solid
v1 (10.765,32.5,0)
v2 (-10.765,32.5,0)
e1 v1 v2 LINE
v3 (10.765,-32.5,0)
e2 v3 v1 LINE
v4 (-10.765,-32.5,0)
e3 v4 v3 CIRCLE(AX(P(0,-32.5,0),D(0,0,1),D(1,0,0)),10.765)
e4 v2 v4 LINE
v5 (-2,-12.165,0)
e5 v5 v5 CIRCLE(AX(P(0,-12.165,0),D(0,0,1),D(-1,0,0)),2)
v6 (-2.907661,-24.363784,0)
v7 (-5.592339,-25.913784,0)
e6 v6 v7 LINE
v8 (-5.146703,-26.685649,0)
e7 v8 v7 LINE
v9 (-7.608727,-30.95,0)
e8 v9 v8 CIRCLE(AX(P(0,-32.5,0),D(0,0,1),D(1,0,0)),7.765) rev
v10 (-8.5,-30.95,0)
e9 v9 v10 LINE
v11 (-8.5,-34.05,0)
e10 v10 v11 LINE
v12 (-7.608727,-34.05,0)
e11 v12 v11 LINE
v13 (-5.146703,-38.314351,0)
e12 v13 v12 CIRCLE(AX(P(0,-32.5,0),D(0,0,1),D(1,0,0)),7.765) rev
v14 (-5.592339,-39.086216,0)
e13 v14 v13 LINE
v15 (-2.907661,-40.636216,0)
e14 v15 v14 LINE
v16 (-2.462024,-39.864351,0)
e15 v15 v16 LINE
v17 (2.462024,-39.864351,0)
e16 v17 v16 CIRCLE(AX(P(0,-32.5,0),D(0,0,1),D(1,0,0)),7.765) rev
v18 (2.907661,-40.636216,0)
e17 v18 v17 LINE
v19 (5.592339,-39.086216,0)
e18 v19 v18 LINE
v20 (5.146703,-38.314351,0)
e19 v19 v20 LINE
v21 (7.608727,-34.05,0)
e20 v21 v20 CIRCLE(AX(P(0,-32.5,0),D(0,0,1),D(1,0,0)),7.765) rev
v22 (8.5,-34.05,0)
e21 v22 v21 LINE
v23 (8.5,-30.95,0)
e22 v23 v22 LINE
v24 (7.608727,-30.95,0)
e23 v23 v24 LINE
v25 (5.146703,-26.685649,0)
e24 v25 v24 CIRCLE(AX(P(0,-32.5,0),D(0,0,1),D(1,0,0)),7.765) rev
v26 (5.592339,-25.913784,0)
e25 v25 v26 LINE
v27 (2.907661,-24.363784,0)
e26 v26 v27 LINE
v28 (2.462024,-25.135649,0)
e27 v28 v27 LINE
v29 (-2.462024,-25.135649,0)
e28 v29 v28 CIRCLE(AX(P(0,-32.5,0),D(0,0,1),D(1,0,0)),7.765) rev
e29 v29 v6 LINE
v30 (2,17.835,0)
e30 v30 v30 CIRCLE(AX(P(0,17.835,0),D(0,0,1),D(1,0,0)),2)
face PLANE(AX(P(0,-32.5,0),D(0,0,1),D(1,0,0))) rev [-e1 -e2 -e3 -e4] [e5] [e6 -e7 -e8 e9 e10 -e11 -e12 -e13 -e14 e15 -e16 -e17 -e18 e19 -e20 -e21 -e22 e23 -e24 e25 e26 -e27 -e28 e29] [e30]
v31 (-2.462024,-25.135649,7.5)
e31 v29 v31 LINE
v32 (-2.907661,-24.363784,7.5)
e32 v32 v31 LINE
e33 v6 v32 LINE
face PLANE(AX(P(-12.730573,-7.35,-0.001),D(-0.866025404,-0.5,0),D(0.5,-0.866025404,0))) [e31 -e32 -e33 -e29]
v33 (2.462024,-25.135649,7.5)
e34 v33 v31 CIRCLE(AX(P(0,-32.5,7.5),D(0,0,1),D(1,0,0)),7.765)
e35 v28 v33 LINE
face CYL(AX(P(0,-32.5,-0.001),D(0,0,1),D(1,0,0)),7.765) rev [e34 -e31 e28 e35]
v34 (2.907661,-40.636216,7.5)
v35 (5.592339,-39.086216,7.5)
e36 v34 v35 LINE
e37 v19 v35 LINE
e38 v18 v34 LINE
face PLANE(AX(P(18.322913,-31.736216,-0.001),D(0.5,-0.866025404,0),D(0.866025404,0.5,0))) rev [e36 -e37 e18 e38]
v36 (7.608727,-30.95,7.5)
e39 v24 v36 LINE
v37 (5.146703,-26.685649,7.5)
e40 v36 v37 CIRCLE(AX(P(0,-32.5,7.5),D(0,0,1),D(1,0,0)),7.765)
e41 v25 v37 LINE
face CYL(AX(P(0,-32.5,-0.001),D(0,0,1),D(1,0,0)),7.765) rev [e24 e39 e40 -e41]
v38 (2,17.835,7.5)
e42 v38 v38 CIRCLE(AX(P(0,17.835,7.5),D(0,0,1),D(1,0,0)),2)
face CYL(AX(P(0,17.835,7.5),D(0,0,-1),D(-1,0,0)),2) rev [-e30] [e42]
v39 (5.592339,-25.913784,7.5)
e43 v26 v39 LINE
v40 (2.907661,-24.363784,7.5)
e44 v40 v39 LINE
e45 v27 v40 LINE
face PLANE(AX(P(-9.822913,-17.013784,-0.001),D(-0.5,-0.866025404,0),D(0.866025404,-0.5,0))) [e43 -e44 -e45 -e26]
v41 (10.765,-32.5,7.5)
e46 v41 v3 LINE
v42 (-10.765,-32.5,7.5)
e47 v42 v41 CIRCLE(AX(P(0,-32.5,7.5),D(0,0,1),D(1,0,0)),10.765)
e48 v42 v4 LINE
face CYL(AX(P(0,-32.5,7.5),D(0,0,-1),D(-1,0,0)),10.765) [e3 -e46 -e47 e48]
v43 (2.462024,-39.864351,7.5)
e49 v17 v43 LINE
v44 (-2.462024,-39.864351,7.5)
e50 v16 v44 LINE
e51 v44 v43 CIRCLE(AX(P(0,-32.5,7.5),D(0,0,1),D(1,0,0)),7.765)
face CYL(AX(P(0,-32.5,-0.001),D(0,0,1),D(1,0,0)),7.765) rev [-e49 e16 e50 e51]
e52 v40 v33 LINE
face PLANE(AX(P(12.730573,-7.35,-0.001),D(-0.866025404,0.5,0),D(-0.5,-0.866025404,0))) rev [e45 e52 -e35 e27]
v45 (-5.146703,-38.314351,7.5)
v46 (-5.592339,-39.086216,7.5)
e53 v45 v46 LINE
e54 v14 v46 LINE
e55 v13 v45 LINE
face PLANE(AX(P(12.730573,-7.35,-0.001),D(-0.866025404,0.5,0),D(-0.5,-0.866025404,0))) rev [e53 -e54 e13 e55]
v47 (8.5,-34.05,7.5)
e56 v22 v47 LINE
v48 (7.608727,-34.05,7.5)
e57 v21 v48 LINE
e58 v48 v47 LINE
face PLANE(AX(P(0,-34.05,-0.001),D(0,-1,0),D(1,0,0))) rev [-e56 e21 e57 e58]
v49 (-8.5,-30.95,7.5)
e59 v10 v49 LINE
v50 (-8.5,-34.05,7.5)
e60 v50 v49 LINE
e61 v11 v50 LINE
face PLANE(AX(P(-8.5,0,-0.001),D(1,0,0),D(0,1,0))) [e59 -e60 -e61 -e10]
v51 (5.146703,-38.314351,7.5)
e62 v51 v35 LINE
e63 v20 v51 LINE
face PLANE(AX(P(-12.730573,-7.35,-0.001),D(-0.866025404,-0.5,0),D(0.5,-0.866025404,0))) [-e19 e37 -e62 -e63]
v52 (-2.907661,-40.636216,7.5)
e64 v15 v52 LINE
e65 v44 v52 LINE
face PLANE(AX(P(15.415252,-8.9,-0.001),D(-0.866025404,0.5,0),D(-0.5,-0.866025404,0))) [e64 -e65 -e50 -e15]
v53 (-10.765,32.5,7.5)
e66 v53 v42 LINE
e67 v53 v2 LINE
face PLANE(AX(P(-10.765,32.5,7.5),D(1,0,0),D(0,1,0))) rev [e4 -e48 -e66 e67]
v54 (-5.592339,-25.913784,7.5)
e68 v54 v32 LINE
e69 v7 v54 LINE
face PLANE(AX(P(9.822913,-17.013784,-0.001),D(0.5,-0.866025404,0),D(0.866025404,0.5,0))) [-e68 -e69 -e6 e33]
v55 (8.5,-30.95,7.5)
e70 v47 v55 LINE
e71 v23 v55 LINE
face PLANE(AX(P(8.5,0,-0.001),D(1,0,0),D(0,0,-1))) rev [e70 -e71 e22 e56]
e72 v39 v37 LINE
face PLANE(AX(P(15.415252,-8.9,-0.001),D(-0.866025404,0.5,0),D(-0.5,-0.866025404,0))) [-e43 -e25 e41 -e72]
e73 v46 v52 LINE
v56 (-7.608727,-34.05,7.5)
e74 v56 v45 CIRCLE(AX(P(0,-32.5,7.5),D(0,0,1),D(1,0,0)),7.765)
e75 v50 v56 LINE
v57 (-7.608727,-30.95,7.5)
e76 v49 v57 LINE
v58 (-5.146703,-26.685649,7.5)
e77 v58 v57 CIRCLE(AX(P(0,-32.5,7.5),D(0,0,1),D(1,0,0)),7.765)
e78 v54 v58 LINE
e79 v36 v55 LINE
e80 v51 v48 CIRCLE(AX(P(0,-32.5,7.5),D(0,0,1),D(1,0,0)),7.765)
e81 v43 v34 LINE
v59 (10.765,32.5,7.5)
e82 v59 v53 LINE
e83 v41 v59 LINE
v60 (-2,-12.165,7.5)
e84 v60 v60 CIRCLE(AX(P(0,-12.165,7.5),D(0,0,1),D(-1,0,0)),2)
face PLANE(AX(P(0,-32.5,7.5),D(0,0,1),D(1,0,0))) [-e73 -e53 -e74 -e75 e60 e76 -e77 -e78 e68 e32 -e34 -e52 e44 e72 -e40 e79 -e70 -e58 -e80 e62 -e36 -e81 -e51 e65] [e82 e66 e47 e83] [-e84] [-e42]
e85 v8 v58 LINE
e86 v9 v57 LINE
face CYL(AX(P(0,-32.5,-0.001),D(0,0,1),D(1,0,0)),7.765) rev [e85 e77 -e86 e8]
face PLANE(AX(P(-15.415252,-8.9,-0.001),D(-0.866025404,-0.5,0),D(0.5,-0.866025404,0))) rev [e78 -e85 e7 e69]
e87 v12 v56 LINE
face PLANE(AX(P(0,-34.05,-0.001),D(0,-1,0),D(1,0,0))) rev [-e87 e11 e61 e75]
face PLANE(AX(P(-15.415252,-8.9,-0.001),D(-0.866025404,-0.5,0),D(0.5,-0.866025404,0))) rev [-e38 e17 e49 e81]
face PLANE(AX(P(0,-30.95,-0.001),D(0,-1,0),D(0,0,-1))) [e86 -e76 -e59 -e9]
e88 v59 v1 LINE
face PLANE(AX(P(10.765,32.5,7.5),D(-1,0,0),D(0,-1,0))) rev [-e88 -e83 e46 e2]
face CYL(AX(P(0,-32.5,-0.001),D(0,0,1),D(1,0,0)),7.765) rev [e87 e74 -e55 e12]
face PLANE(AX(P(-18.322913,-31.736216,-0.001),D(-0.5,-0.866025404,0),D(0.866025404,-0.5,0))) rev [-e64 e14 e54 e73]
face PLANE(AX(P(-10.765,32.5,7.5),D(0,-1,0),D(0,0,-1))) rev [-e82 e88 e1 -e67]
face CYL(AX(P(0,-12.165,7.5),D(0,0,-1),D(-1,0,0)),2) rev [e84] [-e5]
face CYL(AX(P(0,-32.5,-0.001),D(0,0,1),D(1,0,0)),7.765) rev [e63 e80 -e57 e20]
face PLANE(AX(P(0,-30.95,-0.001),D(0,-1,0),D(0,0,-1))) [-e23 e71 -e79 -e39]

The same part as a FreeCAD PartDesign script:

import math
import FreeCAD as App
import Part
import Sketcher
from FreeCAD import Vector
Q = App.Units.Quantity

doc = App.newDocument("Part")
body = doc.addObject("PartDesign::Body", "Body")

# Sketch on XY plane
sketch1 = doc.addObject("Sketcher::SketchObject", "Sketch")
body.addObject(sketch1)
sketch1.AttachmentSupport = (doc.XY_Plane, [""])
sketch1.MapMode = "FlatFace"
sketch1.addGeometry(Part.LineSegment(Vector(10.8, 32.5, 0), Vector(-10.8, 32.5, 0)), False)
sketch1.addGeometry(Part.LineSegment(Vector(-10.8, 32.5, 0), Vector(-10.8, -32.5, 0)), False)
sketch1.addGeometry(Part.ArcOfCircle(Part.Circle(Vector(0, -32.5, 0), Vector(0, 0, 1), 10.8), math.radians(180), math.radians(360)), False)
sketch1.addGeometry(Part.LineSegment(Vector(10.8, -32.5, 0), Vector(10.8, 32.5, 0)), False)
sketch1.addGeometry(Part.Circle(Vector(0, -32.5, 0), Vector(0, 0, 1), 4.8), False)
sketch1.addGeometry(Part.Circle(Vector(0, -12.2, 0), Vector(0, 0, 1), 2), False)
sketch1.addGeometry(Part.Circle(Vector(0, 17.8, 0), Vector(0, 0, 1), 2), False)
sketch1.addConstraint(Sketcher.Constraint("Coincident", 0, 2, 1, 1))
sketch1.addConstraint(Sketcher.Constraint("Tangent", 1, 2, 2, 1))
sketch1.addConstraint(Sketcher.Constraint("Tangent", 2, 2, 3, 1))
sketch1.addConstraint(Sketcher.Constraint("Coincident", 3, 2, 0, 1))
sketch1.addConstraint(Sketcher.Constraint("Horizontal", 0))
sketch1.addConstraint(Sketcher.Constraint("Vertical", 1))
sketch1.addConstraint(Sketcher.Constraint("Vertical", 3))
sketch1.addConstraint(Sketcher.Constraint("Coincident", 4, 3, 2, 3))
sketch1.addConstraint(Sketcher.Constraint("Equal", 5, 6))
sketch1.addConstraint(Sketcher.Constraint("Symmetric", 0, 2, 2, 2, -1, 1))
sketch1.addConstraint(Sketcher.Constraint("PointOnObject", 5, 3, -2))
sketch1.addConstraint(Sketcher.Constraint("PointOnObject", 6, 3, -2))
sketch1.addConstraint(Sketcher.Constraint("Diameter", 5, Q("4 mm")))
sketch1.addConstraint(Sketcher.Constraint("Diameter", 4, Q("9.53 mm")))
sketch1.addConstraint(Sketcher.Constraint("DistanceY", 1, 2, 1, 1, Q("65 mm")))
sketch1.addConstraint(Sketcher.Constraint("Radius", 2, Q("10.765 mm")))
sketch1.addConstraint(Sketcher.Constraint("DistanceY", 5, 3, 6, 3, Q("30 mm")))
sketch1.addConstraint(Sketcher.Constraint("DistanceY", 5, 3, -1, 1, Q("12.165 mm")))
pad1 = doc.addObject("PartDesign::Pad", "Pad")
body.addObject(pad1)
pad1.Profile = sketch1
pad1.Length = 7.5

# Sketch on XY plane
sketch2 = doc.addObject("Sketcher::SketchObject", "Sketch001")
body.addObject(sketch2)
sketch2.AttachmentSupport = (doc.XY_Plane, [""])
sketch2.MapMode = "FlatFace"
sketch2.addGeometry(Part.LineSegment(Vector(5.6, -39.1, 0), Vector(5.1, -38.3, 0)), False)
sketch2.addGeometry(Part.ArcOfCircle(Part.Circle(Vector(0, -32.5, 0), Vector(0, 0, 1), 7.8), math.radians(-48), math.radians(-12)), False)
sketch2.addGeometry(Part.LineSegment(Vector(7.6, -34, 0), Vector(8.5, -34, 0)), False)
sketch2.addGeometry(Part.LineSegment(Vector(8.5, -34, 0), Vector(8.5, -30.9, 0)), False)
sketch2.addGeometry(Part.LineSegment(Vector(8.5, -30.9, 0), Vector(7.6, -30.9, 0)), False)
sketch2.addGeometry(Part.ArcOfCircle(Part.Circle(Vector(0, -32.5, 0), Vector(0, 0, 1), 7.8), math.radians(12), math.radians(48)), False)
sketch2.addGeometry(Part.LineSegment(Vector(5.1, -26.7, 0), Vector(5.6, -25.9, 0)), False)
sketch2.addGeometry(Part.LineSegment(Vector(5.6, -25.9, 0), Vector(2.9, -24.4, 0)), False)
sketch2.addGeometry(Part.LineSegment(Vector(2.9, -24.4, 0), Vector(2.5, -25.1, 0)), False)
sketch2.addGeometry(Part.ArcOfCircle(Part.Circle(Vector(0, -32.5, 0), Vector(0, 0, 1), 7.8), math.radians(72), math.radians(108)), False)
sketch2.addGeometry(Part.LineSegment(Vector(-2.5, -25.1, 0), Vector(-2.9, -24.4, 0)), False)
sketch2.addGeometry(Part.LineSegment(Vector(-2.9, -24.4, 0), Vector(-5.6, -25.9, 0)), False)
sketch2.addGeometry(Part.LineSegment(Vector(-5.6, -25.9, 0), Vector(-5.1, -26.7, 0)), False)
sketch2.addGeometry(Part.ArcOfCircle(Part.Circle(Vector(0, -32.5, 0), Vector(0, 0, 1), 7.8), math.radians(132), math.radians(168)), False)
sketch2.addGeometry(Part.LineSegment(Vector(-7.6, -30.9, 0), Vector(-8.5, -30.9, 0)), False)
sketch2.addGeometry(Part.LineSegment(Vector(-8.5, -30.9, 0), Vector(-8.5, -34, 0)), False)
sketch2.addGeometry(Part.LineSegment(Vector(-8.5, -34, 0), Vector(-7.6, -34, 0)), False)
sketch2.addGeometry(Part.ArcOfCircle(Part.Circle(Vector(0, -32.5, 0), Vector(0, 0, 1), 7.8), math.radians(-168), math.radians(-132)), False)
sketch2.addGeometry(Part.LineSegment(Vector(-5.1, -38.3, 0), Vector(-5.6, -39.1, 0)), False)
sketch2.addGeometry(Part.LineSegment(Vector(-5.6, -39.1, 0), Vector(-2.9, -40.6, 0)), False)
sketch2.addGeometry(Part.LineSegment(Vector(-2.9, -40.6, 0), Vector(-2.5, -39.9, 0)), False)
sketch2.addGeometry(Part.ArcOfCircle(Part.Circle(Vector(0, -32.5, 0), Vector(0, 0, 1), 7.8), math.radians(-108), math.radians(-72)), False)
sketch2.addGeometry(Part.LineSegment(Vector(2.5, -39.9, 0), Vector(2.9, -40.6, 0)), False)
sketch2.addGeometry(Part.LineSegment(Vector(2.9, -40.6, 0), Vector(5.6, -39.1, 0)), False)
sketch2.addConstraint(Sketcher.Constraint("Coincident", 0, 2, 1, 1))
sketch2.addConstraint(Sketcher.Constraint("Coincident", 1, 2, 2, 1))
sketch2.addConstraint(Sketcher.Constraint("Coincident", 2, 2, 3, 1))
sketch2.addConstraint(Sketcher.Constraint("Coincident", 3, 2, 4, 1))
sketch2.addConstraint(Sketcher.Constraint("Coincident", 4, 2, 5, 1))
sketch2.addConstraint(Sketcher.Constraint("Coincident", 5, 2, 6, 1))
sketch2.addConstraint(Sketcher.Constraint("Coincident", 6, 2, 7, 1))
sketch2.addConstraint(Sketcher.Constraint("Coincident", 7, 2, 8, 1))
sketch2.addConstraint(Sketcher.Constraint("Coincident", 8, 2, 9, 1))
sketch2.addConstraint(Sketcher.Constraint("Coincident", 9, 2, 10, 1))
sketch2.addConstraint(Sketcher.Constraint("Coincident", 10, 2, 11, 1))
sketch2.addConstraint(Sketcher.Constraint("Coincident", 11, 2, 12, 1))
sketch2.addConstraint(Sketcher.Constraint("Coincident", 12, 2, 13, 1))
sketch2.addConstraint(Sketcher.Constraint("Coincident", 13, 2, 14, 1))
sketch2.addConstraint(Sketcher.Constraint("Coincident", 14, 2, 15, 1))
sketch2.addConstraint(Sketcher.Constraint("Coincident", 15, 2, 16, 1))
sketch2.addConstraint(Sketcher.Constraint("Coincident", 16, 2, 17, 1))
sketch2.addConstraint(Sketcher.Constraint("Coincident", 17, 2, 18, 1))
sketch2.addConstraint(Sketcher.Constraint("Coincident", 18, 2, 19, 1))
sketch2.addConstraint(Sketcher.Constraint("Coincident", 19, 2, 20, 1))
sketch2.addConstraint(Sketcher.Constraint("Coincident", 20, 2, 21, 1))
sketch2.addConstraint(Sketcher.Constraint("Coincident", 21, 2, 22, 1))
sketch2.addConstraint(Sketcher.Constraint("Coincident", 22, 2, 23, 1))
sketch2.addConstraint(Sketcher.Constraint("Coincident", 23, 2, 0, 1))
sketch2.addConstraint(Sketcher.Constraint("Horizontal", 2))
sketch2.addConstraint(Sketcher.Constraint("Vertical", 3))
sketch2.addConstraint(Sketcher.Constraint("Horizontal", 4))
sketch2.addConstraint(Sketcher.Constraint("Horizontal", 14))
sketch2.addConstraint(Sketcher.Constraint("Vertical", 15))
sketch2.addConstraint(Sketcher.Constraint("Horizontal", 16))
sketch2.addConstraint(Sketcher.Constraint("Coincident", 5, 3, 1, 3))
sketch2.addConstraint(Sketcher.Constraint("Coincident", 9, 3, 1, 3))
sketch2.addConstraint(Sketcher.Constraint("Coincident", 13, 3, 1, 3))
sketch2.addConstraint(Sketcher.Constraint("Coincident", 17, 3, 1, 3))
sketch2.addConstraint(Sketcher.Constraint("Coincident", 21, 3, 1, 3))
sketch2.addConstraint(Sketcher.Constraint("Equal", 1, 5))
sketch2.addConstraint(Sketcher.Constraint("Equal", 5, 9))
sketch2.addConstraint(Sketcher.Constraint("Equal", 9, 13))
sketch2.addConstraint(Sketcher.Constraint("Equal", 13, 17))
sketch2.addConstraint(Sketcher.Constraint("Equal", 17, 21))
sketch2.addConstraint(Sketcher.Constraint("Symmetric", 8, 2, 9, 2, -2))
sketch2.addConstraint(Sketcher.Constraint("Symmetric", 7, 2, 10, 2, -2))
sketch2.addConstraint(Sketcher.Constraint("Symmetric", 6, 2, 11, 2, -2))
sketch2.addConstraint(Sketcher.Constraint("Symmetric", 3, 2, 14, 2, -2))
sketch2.addConstraint(Sketcher.Constraint("Symmetric", 19, 2, 22, 2, -2))
sketch2.addConstraint(Sketcher.Constraint("Symmetric", 18, 2, 23, 2, -2))
sketch2.addConstraint(Sketcher.Constraint("Perpendicular", 6, 7))
sketch2.addConstraint(Sketcher.Constraint("Perpendicular", 7, 8))
sketch2.addConstraint(Sketcher.Constraint("Parallel", 0, 10))
sketch2.addConstraint(Sketcher.Constraint("Perpendicular", 11, 12))
sketch2.addConstraint(Sketcher.Constraint("Parallel", 8, 18))
sketch2.addConstraint(Sketcher.Constraint("Perpendicular", 18, 19))
sketch2.addConstraint(Sketcher.Constraint("Perpendicular", 19, 20))
sketch2.addConstraint(Sketcher.Constraint("Parallel", 12, 22))
sketch2.addConstraint(Sketcher.Constraint("Horizontal", 2, 2, 15, 2))
sketch2.addConstraint(Sketcher.Constraint("Vertical", 1, 2, 4, 2))
sketch2.addConstraint(Sketcher.Constraint("Vertical", 0, 2, 5, 2))
sketch2.addConstraint(Sketcher.Constraint("Vertical", 11, 2, 18, 2))
sketch2.addConstraint(Sketcher.Constraint("Vertical", 10, 2, 19, 2))
sketch2.addConstraint(Sketcher.Constraint("Equal", 6, 8))
sketch2.addConstraint(Sketcher.Constraint("Angle", 0, Q("120 deg")))
sketch2.addConstraint(Sketcher.Constraint("DistanceY", 3, 1, 3, 2, Q("3.1 mm")))
sketch2.addConstraint(Sketcher.Constraint("Radius", 1, Q("7.765 mm")))
sketch2.addConstraint(Sketcher.Constraint("Distance", 7, Q("3.1 mm")))
sketch2.addConstraint(Sketcher.Constraint("DistanceY", 1, 3, -1, 1, Q("32.5 mm")))
sketch2.addConstraint(Sketcher.Constraint("DistanceX", -1, 1, 2, 2, Q("8.5 mm")))
sketch2.addConstraint(Sketcher.Constraint("DistanceX", -1, 1, 6, 2, Q("5.592339 mm")))
pocket1 = doc.addObject("PartDesign::Pocket", "Pocket")
body.addObject(pocket1)
pocket1.Profile = sketch2
pocket1.Length = 7.5
pocket1.Reversed = True

doc.recompute()
